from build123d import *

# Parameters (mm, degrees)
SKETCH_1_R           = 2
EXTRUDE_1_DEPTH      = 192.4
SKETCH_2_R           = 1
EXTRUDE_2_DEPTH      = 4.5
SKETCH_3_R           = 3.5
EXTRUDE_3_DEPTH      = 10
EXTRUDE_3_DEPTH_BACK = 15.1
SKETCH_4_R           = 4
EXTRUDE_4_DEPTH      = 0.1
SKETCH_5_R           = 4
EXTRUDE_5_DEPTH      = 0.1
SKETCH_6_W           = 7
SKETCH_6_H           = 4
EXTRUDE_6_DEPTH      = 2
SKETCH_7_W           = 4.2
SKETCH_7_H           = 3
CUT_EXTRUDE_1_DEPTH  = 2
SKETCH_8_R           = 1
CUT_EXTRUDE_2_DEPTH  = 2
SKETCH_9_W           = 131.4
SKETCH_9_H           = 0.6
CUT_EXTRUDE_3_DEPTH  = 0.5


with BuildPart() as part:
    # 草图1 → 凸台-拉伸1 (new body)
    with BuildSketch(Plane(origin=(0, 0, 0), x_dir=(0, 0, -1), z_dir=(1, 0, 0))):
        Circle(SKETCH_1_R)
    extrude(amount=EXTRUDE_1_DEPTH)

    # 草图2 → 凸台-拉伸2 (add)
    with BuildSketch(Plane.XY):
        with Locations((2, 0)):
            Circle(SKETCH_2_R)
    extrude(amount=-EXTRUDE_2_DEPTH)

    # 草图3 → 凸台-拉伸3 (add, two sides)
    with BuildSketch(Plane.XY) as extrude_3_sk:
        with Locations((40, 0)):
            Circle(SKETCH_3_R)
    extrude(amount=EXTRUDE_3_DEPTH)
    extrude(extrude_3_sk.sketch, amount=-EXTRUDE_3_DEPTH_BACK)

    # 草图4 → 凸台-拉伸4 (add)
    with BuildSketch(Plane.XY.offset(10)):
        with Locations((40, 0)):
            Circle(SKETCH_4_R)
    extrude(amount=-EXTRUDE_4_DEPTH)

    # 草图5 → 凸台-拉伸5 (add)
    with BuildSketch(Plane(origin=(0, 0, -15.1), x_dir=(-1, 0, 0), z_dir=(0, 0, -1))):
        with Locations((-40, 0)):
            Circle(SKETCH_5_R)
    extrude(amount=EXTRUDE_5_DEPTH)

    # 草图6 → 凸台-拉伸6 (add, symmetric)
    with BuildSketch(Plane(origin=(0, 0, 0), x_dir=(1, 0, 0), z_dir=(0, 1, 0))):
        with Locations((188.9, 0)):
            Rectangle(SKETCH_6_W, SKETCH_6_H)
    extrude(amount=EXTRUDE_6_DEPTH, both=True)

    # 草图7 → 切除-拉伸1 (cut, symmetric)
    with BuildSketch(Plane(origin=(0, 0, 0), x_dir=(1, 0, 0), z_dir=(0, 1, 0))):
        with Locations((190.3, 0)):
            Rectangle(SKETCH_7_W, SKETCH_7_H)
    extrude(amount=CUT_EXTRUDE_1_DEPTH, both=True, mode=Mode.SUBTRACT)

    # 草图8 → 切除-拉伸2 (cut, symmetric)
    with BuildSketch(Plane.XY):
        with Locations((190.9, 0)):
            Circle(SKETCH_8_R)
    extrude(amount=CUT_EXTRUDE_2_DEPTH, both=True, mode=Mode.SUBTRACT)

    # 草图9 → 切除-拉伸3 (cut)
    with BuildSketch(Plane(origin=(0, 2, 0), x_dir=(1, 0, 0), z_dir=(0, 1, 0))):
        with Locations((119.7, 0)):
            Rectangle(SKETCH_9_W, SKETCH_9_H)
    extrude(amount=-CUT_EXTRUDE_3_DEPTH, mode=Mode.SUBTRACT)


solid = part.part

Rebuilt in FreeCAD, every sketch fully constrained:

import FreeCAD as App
import Part
import Sketcher
Q = App.Units.Quantity


def add_polygon(sketch, points):
    """Adds a closed chain of lines whose ends are joined by coincident constraints."""
    first, n = sketch.GeometryCount, len(points)
    for a, b in zip(points, points[1:] + points[:1]):
        sketch.addGeometry(Part.LineSegment(App.Vector(*a, 0), App.Vector(*b, 0)), False)
    for i in range(n):
        sketch.addConstraint(Sketcher.Constraint("Coincident", first + i, 2, first + (i + 1) % n, 1))

doc = App.newDocument("Part")
body = doc.addObject("PartDesign::Body", "Body")

# Sketch on YZ plane
sketch1 = body.newObject("Sketcher::SketchObject", "Sketch")
sketch1.AttachmentSupport = (doc.getObject("YZ_Plane"), [""])
sketch1.MapMode = "FlatFace"
sketch1.addGeometry(Part.Circle(App.Vector(0, 0, 0), App.Vector(0, 0, 1), 2), False)
sketch1.addConstraint([
    Sketcher.Constraint("Coincident", 0, 3, -1, 1),
    Sketcher.Constraint("Diameter", 0, Q("4 mm")),
])
pad1 = body.newObject("PartDesign::Pad", "Pad")
pad1.Profile = sketch1
pad1.Length = 192.4

# Sketch on XY plane
sketch2 = body.newObject("Sketcher::SketchObject", "Sketch001")
sketch2.AttachmentSupport = (doc.getObject("XY_Plane"), [""])
sketch2.MapMode = "FlatFace"
sketch2.addGeometry(Part.Circle(App.Vector(2, 0, 0), App.Vector(0, 0, 1), 1), False)
sketch2.addConstraint([
    Sketcher.Constraint("PointOnObject", 0, 3, -1),
    Sketcher.Constraint("Diameter", 0, Q("2 mm")),
    Sketcher.Constraint("DistanceX", -1, 1, 0, 3, Q("2 mm")),
])
pad2 = body.newObject("PartDesign::Pad", "Pad001")
pad2.Profile = sketch2
pad2.Length = 4.5
pad2.Reversed = True

# Sketch on XY plane
sketch3 = body.newObject("Sketcher::SketchObject", "Sketch002")
sketch3.AttachmentSupport = (doc.getObject("XY_Plane"), [""])
sketch3.MapMode = "FlatFace"
sketch3.addGeometry(Part.Circle(App.Vector(40, 0, 0), App.Vector(0, 0, 1), 3.5), False)
sketch3.addConstraint([
    Sketcher.Constraint("PointOnObject", 0, 3, -1),
    Sketcher.Constraint("Diameter", 0, Q("7 mm")),
    Sketcher.Constraint("DistanceX", -1, 1, 0, 3, Q("40 mm")),
])
pad3 = body.newObject("PartDesign::Pad", "Pad002")
pad3.Profile = sketch3
pad3.Type = "TwoLengths"
pad3.Length = 10
pad3.Length2 = 15.1

# Sketch on XY plane
sketch4 = body.newObject("Sketcher::SketchObject", "Sketch003")
sketch4.AttachmentSupport = (doc.getObject("XY_Plane"), [""])
sketch4.MapMode = "FlatFace"
sketch4.AttachmentOffset = App.Placement(App.Vector(0, 0, 10), App.Rotation())
sketch4.addGeometry(Part.Circle(App.Vector(40, 0, 0), App.Vector(0, 0, 1), 4), False)
sketch4.addConstraint([
    Sketcher.Constraint("PointOnObject", 0, 3, -1),
    Sketcher.Constraint("Diameter", 0, Q("8 mm")),
    Sketcher.Constraint("DistanceX", -1, 1, 0, 3, Q("40 mm")),
])
pad4 = body.newObject("PartDesign::Pad", "Pad003")
pad4.Profile = sketch4
pad4.Length = 0.1
pad4.Reversed = True

# Sketch on XY plane
sketch5 = body.newObject("Sketcher::SketchObject", "Sketch004")
sketch5.AttachmentSupport = (doc.getObject("XY_Plane"), [""])
sketch5.MapMode = "FlatFace"
sketch5.AttachmentOffset = App.Placement(App.Vector(0, 0, -15.1), App.Rotation())
sketch5.addGeometry(Part.Circle(App.Vector(40, 0, 0), App.Vector(0, 0, 1), 4), False)
sketch5.addConstraint([
    Sketcher.Constraint("PointOnObject", 0, 3, -1),
    Sketcher.Constraint("Diameter", 0, Q("8 mm")),
    Sketcher.Constraint("DistanceX", -1, 1, 0, 3, Q("40 mm")),
])
pad5 = body.newObject("PartDesign::Pad", "Pad004")
pad5.Profile = sketch5
pad5.Length = 0.1
pad5.Reversed = True

# Sketch on XZ plane
sketch6 = body.newObject("Sketcher::SketchObject", "Sketch005")
sketch6.AttachmentSupport = (doc.getObject("XZ_Plane"), [""])
sketch6.MapMode = "FlatFace"
add_polygon(sketch6, [(185.4, -2), (185.4, 2), (192.4, 2), (192.4, -2)])  # lines 0-3
sketch6.addConstraint([
    Sketcher.Constraint("Vertical", 0),
    Sketcher.Constraint("Horizontal", 1),
    Sketcher.Constraint("Vertical", 2),
    Sketcher.Constraint("Horizontal", 3),
    Sketcher.Constraint("DistanceX", 1, 1, 1, 2, Q("7 mm")),
    Sketcher.Constraint("DistanceY", 0, 1, 0, 2, Q("4 mm")),
    Sketcher.Constraint("DistanceY", -1, 1, 0, 2, Q("2 mm")),
    Sketcher.Constraint("DistanceX", -1, 1, 0, 2, Q("185.4 mm")),
])
pad6 = body.newObject("PartDesign::Pad", "Pad005")
pad6.Profile = sketch6
pad6.Length = 4
pad6.Midplane = True

# Sketch on XZ plane
sketch7 = body.newObject("Sketcher::SketchObject", "Sketch006")
sketch7.AttachmentSupport = (doc.getObject("XZ_Plane"), [""])
sketch7.MapMode = "FlatFace"
add_polygon(sketch7, [(188.2, -1.5), (188.2, 1.5), (192.4, 1.5), (192.4, -1.5)])  # lines 0-3
sketch7.addConstraint([
    Sketcher.Constraint("Vertical", 0),
    Sketcher.Constraint("Horizontal", 1),
    Sketcher.Constraint("Vertical", 2),
    Sketcher.Constraint("Horizontal", 3),
    Sketcher.Constraint("DistanceY", 0, 1, 0, 2, Q("3 mm")),
    Sketcher.Constraint("DistanceX", 1, 1, 1, 2, Q("4.2 mm")),
    Sketcher.Constraint("DistanceX", -1, 1, 0, 2, Q("188.2 mm")),
    Sketcher.Constraint("DistanceY", -1, 1, 0, 2, Q("1.5 mm")),
])
pocket1 = body.newObject("PartDesign::Pocket", "Pocket")
pocket1.Profile = sketch7
pocket1.Length = 4
pocket1.Midplane = True

# Sketch on XY plane
sketch8 = body.newObject("Sketcher::SketchObject", "Sketch007")
sketch8.AttachmentSupport = (doc.getObject("XY_Plane"), [""])
sketch8.MapMode = "FlatFace"
sketch8.addGeometry(Part.Circle(App.Vector(190.9, 0, 0), App.Vector(0, 0, 1), 1), False)
sketch8.addConstraint([
    Sketcher.Constraint("PointOnObject", 0, 3, -1),
    Sketcher.Constraint("Diameter", 0, Q("2 mm")),
    Sketcher.Constraint("DistanceX", -1, 1, 0, 3, Q("190.9 mm")),
])
pocket2 = body.newObject("PartDesign::Pocket", "Pocket001")
pocket2.Profile = sketch8
pocket2.Length = 4
pocket2.Midplane = True

# Sketch on XZ plane
sketch9 = body.newObject("Sketcher::SketchObject", "Sketch008")
sketch9.AttachmentSupport = (doc.getObject("XZ_Plane"), [""])
sketch9.MapMode = "FlatFace"
sketch9.AttachmentOffset = App.Placement(App.Vector(0, 0, -2), App.Rotation())
add_polygon(sketch9, [(54, -0.3), (54, 0.3), (185.4, 0.3), (185.4, -0.3)])  # lines 0-3
sketch9.addConstraint([
    Sketcher.Constraint("Vertical", 0),
    Sketcher.Constraint("Horizontal", 1),
    Sketcher.Constraint("Vertical", 2),
    Sketcher.Constraint("Horizontal", 3),
    Sketcher.Constraint("DistanceX", 1, 1, 1, 2, Q("131.4 mm")),
    Sketcher.Constraint("DistanceY", 0, 1, 0, 2, Q("0.6 mm")),
    Sketcher.Constraint("DistanceX", -1, 1, 0, 2, Q("54 mm")),
    Sketcher.Constraint("DistanceY", -1, 1, 0, 2, Q("0.3 mm")),
])
pocket3 = body.newObject("PartDesign::Pocket", "Pocket002")
pocket3.Profile = sketch9
pocket3.Length = 0.5
pocket3.Reversed = True

doc.recompute()
